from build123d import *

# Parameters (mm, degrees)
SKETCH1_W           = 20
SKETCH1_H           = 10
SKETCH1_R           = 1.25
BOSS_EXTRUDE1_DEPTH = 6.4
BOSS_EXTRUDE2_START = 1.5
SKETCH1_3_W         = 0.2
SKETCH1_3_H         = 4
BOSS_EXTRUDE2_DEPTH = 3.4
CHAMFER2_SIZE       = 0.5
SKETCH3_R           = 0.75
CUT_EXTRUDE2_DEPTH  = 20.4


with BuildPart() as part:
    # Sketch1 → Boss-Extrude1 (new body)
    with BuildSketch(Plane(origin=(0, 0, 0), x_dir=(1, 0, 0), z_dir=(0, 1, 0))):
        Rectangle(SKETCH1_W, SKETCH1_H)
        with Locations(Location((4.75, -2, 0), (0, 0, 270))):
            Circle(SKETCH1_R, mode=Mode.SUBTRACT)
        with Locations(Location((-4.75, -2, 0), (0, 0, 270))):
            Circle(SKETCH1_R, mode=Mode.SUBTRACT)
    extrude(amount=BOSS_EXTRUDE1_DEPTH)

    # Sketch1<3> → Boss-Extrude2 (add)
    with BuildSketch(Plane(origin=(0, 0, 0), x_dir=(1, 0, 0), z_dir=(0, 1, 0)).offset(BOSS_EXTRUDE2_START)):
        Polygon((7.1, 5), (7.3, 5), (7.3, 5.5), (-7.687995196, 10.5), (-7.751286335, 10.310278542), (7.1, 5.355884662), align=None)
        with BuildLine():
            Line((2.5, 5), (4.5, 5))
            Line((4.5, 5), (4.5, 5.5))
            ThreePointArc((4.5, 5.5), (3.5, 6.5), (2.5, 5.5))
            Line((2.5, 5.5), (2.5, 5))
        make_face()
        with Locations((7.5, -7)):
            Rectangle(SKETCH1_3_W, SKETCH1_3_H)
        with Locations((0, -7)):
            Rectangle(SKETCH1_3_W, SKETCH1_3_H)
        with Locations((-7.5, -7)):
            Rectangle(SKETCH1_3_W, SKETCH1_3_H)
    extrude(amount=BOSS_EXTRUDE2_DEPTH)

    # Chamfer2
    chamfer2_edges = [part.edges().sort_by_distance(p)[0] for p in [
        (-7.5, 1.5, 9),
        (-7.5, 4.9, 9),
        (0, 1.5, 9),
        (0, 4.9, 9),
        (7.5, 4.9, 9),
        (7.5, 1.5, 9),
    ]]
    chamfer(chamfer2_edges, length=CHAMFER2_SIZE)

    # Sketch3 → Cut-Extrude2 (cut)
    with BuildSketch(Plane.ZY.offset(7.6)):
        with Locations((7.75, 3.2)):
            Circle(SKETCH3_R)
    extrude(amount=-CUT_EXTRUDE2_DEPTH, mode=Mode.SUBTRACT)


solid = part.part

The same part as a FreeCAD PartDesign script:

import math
import FreeCAD as App
import Part
import Sketcher
Q = App.Units.Quantity


def edges_at(feature, points):
    """Names of the edges that pass closest to the given points."""
    edges = feature.Shape.Edges
    near = lambda p: min(range(len(edges)), key=lambda i: edges[i].distToShape(Part.Vertex(*p))[0])
    return sorted({f"Edge{near(p) + 1}" for p in points})


def add_polygon(sketch, points):
    """Adds a closed chain of lines whose ends are joined by coincident constraints."""
    first, n = sketch.GeometryCount, len(points)
    for a, b in zip(points, points[1:] + points[:1]):
        sketch.addGeometry(Part.LineSegment(App.Vector(*a, 0), App.Vector(*b, 0)), False)
    for i in range(n):
        sketch.addConstraint(Sketcher.Constraint("Coincident", first + i, 2, first + (i + 1) % n, 1))

doc = App.newDocument("Part")
body = doc.addObject("PartDesign::Body", "Body")

# Sketch on XZ plane
sketch1 = body.newObject("Sketcher::SketchObject", "Sketch")
sketch1.AttachmentSupport = (doc.getObject("XZ_Plane"), [""])
sketch1.MapMode = "FlatFace"
add_polygon(sketch1, [(-10, -5), (-10, 5), (10, 5), (10, -5)])  # lines 0-3
sketch1.addGeometry(Part.Circle(App.Vector(-4.75, 2, 0), App.Vector(0, 0, 1), 1.25), False)  # 4
sketch1.addGeometry(Part.Circle(App.Vector(4.75, 2, 0), App.Vector(0, 0, 1), 1.25), False)  # 5
sketch1.addConstraint([
    Sketcher.Constraint("Vertical", 0),
    Sketcher.Constraint("Horizontal", 1),
    Sketcher.Constraint("Vertical", 2),
    Sketcher.Constraint("Horizontal", 3),
    Sketcher.Constraint("Equal", 4, 5),
    Sketcher.Constraint("Symmetric", 0, 2, 2, 2, -1, 1),
    Sketcher.Constraint("Symmetric", 4, 3, 5, 3, -2),
    Sketcher.Constraint("Diameter", 4, Q("2.5 mm")),
    Sketcher.Constraint("DistanceX", 1, 1, 1, 2, Q("20 mm")),
    Sketcher.Constraint("DistanceY", 0, 1, 0, 2, Q("10 mm")),
    Sketcher.Constraint("DistanceY", -1, 1, 4, 3, Q("2 mm")),
    Sketcher.Constraint("DistanceX", 4, 3, 5, 3, Q("9.5 mm")),
])
pad1 = body.newObject("PartDesign::Pad", "Pad")
pad1.Profile = sketch1
pad1.Length = 6.4
pad1.Reversed = True

# Sketch on XZ plane
sketch2 = body.newObject("Sketcher::SketchObject", "Sketch001")
sketch2.AttachmentSupport = (doc.getObject("XZ_Plane"), [""])
sketch2.MapMode = "FlatFace"
sketch2.AttachmentOffset = App.Placement(App.Vector(0, 0, -1.5), App.Rotation())
add_polygon(sketch2, [(7.1, -5), (7.3, -5), (7.3, -5.5), (-7.687995, -10.5), (-7.751286, -10.310279), (7.1, -5.355885)])  # lines 0-5
sketch2.addGeometry(Part.LineSegment(App.Vector(2.5, -5, 0), App.Vector(4.5, -5, 0)), False)  # 6
sketch2.addGeometry(Part.LineSegment(App.Vector(4.5, -5, 0), App.Vector(4.5, -5.5, 0)), False)  # 7
sketch2.addGeometry(Part.ArcOfCircle(Part.Circle(App.Vector(3.5, -5.5, 0), App.Vector(0, 0, 1), 1), math.radians(180), math.radians(360)), False)  # 8
sketch2.addGeometry(Part.LineSegment(App.Vector(2.5, -5.5, 0), App.Vector(2.5, -5, 0)), False)  # 9
add_polygon(sketch2, [(7.4, 5), (7.4, 9), (7.6, 9), (7.6, 5)])  # lines 10-13
add_polygon(sketch2, [(-0.1, 5), (-0.1, 9), (0.1, 9), (0.1, 5)])  # lines 14-17
add_polygon(sketch2, [(-7.6, 5), (-7.6, 9), (-7.4, 9), (-7.4, 5)])  # lines 18-21
sketch2.addConstraint([
    Sketcher.Constraint("Coincident", 6, 2, 7, 1),
    Sketcher.Constraint("Tangent", 7, 2, 8, 2),
    Sketcher.Constraint("Tangent", 8, 1, 9, 1),
    Sketcher.Constraint("Coincident", 9, 2, 6, 1),
    Sketcher.Constraint("Horizontal", 0),
    Sketcher.Constraint("Vertical", 1),
    Sketcher.Constraint("Vertical", 5),
    Sketcher.Constraint("Horizontal", 6),
    Sketcher.Constraint("Vertical", 7),
    Sketcher.Constraint("Vertical", 9),
    Sketcher.Constraint("Vertical", 10),
    Sketcher.Constraint("Horizontal", 11),
    Sketcher.Constraint("Vertical", 12),
    Sketcher.Constraint("Horizontal", 13),
    Sketcher.Constraint("Vertical", 14),
    Sketcher.Constraint("Horizontal", 15),
    Sketcher.Constraint("Vertical", 16),
    Sketcher.Constraint("Horizontal", 17),
    Sketcher.Constraint("Vertical", 18),
    Sketcher.Constraint("Horizontal", 19),
    Sketcher.Constraint("Vertical", 20),
    Sketcher.Constraint("Horizontal", 21),
    Sketcher.Constraint("Symmetric", 11, 2, 18, 2, -2),
    Sketcher.Constraint("Symmetric", 13, 2, 20, 2, -2),
    Sketcher.Constraint("Perpendicular", 2, 3),
    Sketcher.Constraint("Perpendicular", 3, 4),
    Sketcher.Constraint("Horizontal", 8, 3, 1, 2),
    Sketcher.Constraint("Horizontal", 5, 2, 6, 2),
    Sketcher.Constraint("Horizontal", 11, 2, 14, 2),
    Sketcher.Constraint("Horizontal", 13, 2, 16, 2),
    Sketcher.Constraint("Equal", 0, 11),
    Sketcher.Constraint("Equal", 13, 15),
    Sketcher.Constraint("Radius", 8, Q("1 mm")),
    Sketcher.Constraint("DistanceY", 10, 1, 10, 2, Q("4 mm")),
    Sketcher.Constraint("DistanceX", 0, 1, 0, 2, Q("0.2 mm")),
    Sketcher.Constraint("DistanceY", 1, 2, 1, 1, Q("0.5 mm")),
    Sketcher.Constraint("DistanceY", 0, 2, -1, 1, Q("5 mm")),
    Sketcher.Constraint("DistanceY", -1, 1, 10, 2, Q("9 mm")),
    Sketcher.Constraint("DistanceY", 2, 2, 8, 3, Q("5 mm")),
    Sketcher.Constraint("DistanceX", 18, 2, 10, 2, Q("15 mm")),
    Sketcher.Constraint("Distance", 2, Q("15.8 mm")),
    Sketcher.Constraint("Distance", 3, Q("0.2 mm")),
    Sketcher.Constraint("DistanceX", -1, 1, 8, 3, Q("3.5 mm")),
    Sketcher.Constraint("DistanceX", -1, 1, 0, 2, Q("7.3 mm")),
    Sketcher.Constraint("DistanceX", 14, 2, -1, 1, Q("0.1 mm")),
])
pad2 = body.newObject("PartDesign::Pad", "Pad001")
pad2.Profile = sketch2
pad2.Length = 3.4
pad2.Reversed = True
doc.recompute()

chamfer = body.newObject("PartDesign::Chamfer", "Chamfer")
chamfer.Base = (pad2, edges_at(pad2, [
    (-7.5, 1.5, 9),
    (-7.5, 4.9, 9),
    (0, 1.5, 9),
    (0, 4.9, 9),
    (7.5, 4.9, 9),
    (7.5, 1.5, 9),
]))
chamfer.Size = 0.5

# Sketch on YZ plane
sketch3 = body.newObject("Sketcher::SketchObject", "Sketch002")
sketch3.AttachmentSupport = (doc.getObject("YZ_Plane"), [""])
sketch3.MapMode = "FlatFace"
sketch3.AttachmentOffset = App.Placement(App.Vector(0, 0, -7.6), App.Rotation())
sketch3.addGeometry(Part.Circle(App.Vector(3.2, 7.75, 0), App.Vector(0, 0, 1), 0.75), False)
sketch3.addConstraint([
    Sketcher.Constraint("Diameter", 0, Q("1.5 mm")),
    Sketcher.Constraint("DistanceX", -1, 1, 0, 3, Q("3.2 mm")),
    Sketcher.Constraint("DistanceY", -1, 1, 0, 3, Q("7.75 mm")),
])
pocket1 = body.newObject("PartDesign::Pocket", "Pocket")
pocket1.Profile = sketch3
pocket1.Length = 20.4
pocket1.Reversed = True

doc.recompute()
